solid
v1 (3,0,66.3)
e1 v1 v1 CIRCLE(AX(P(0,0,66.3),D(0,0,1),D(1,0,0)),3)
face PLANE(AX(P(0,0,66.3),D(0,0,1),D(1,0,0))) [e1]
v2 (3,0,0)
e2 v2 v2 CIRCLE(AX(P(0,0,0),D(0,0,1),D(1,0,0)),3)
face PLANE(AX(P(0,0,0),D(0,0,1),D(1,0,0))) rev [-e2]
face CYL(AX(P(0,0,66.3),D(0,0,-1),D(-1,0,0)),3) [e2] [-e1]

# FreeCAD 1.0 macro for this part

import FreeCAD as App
import Part
import Sketcher
from FreeCAD import Vector
Q = App.Units.Quantity

doc = App.newDocument("Part")
body = doc.addObject("PartDesign::Body", "Body")

# Sketch on XY plane
sketch1 = body.newObject("Sketcher::SketchObject", "Sketch")
sketch1.AttachmentSupport = (doc.getObject("XY_Plane"), [""])
sketch1.MapMode = "FlatFace"
sketch1.addGeometry(Part.Circle(Vector(0, 0, 0), Vector(0, 0, 1), 3), False)
sketch1.addConstraint([
    Sketcher.Constraint("Coincident", 0, 3, -1, 1),
    Sketcher.Constraint("Diameter", 0, Q("6 mm")),
])
pad1 = body.newObject("PartDesign::Pad", "Pad")
pad1.Profile = sketch1
pad1.Length = 66.3

doc.recompute()
